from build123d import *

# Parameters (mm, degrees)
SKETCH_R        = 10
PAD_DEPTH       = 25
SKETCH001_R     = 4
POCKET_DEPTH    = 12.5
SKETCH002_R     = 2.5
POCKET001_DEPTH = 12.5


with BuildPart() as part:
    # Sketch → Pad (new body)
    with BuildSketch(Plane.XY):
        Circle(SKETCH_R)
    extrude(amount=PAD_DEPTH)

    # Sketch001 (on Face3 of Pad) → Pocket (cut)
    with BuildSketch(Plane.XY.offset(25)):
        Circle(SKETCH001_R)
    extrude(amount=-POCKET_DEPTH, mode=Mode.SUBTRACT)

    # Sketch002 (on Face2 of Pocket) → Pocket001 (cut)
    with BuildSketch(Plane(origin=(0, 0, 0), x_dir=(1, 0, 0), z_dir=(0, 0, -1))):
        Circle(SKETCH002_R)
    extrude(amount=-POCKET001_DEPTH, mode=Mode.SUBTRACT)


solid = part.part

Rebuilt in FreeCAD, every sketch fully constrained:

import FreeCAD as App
import Part
import Sketcher
Q = App.Units.Quantity

doc = App.newDocument("Part")
params = doc.addObject("Spreadsheet::Sheet", "Params")
for row, (alias, value) in enumerate([
    ("sketch1_diameter", "20 mm"),
    ("pad1_length", "25 mm"),
    ("sketch2_diameter", "8 mm"),
    ("pocket1_length", "12.5 mm"),
    ("sketch3_diameter", "5 mm"),
    ("pocket2_length", "12.5 mm"),
], start=1):
    params.set(f"A{row}", alias)
    params.set(f"B{row}", "=" + value)
    params.setAlias(f"B{row}", alias)

body = doc.addObject("PartDesign::Body", "Body")

sketch1 = body.newObject("Sketcher::SketchObject", "Sketch")
sketch1.AttachmentSupport = (doc.getObject("XY_Plane"), [""])
sketch1.MapMode = "FlatFace"
sketch1.addGeometry(Part.Circle(App.Vector(0, 0, 0), App.Vector(0, 0, 1), 10), False)
sketch1.addConstraint([
    Sketcher.Constraint("Coincident", 0, 3, -1, 1),
    Sketcher.Constraint("Diameter", 0, Q("20 mm")),
])
sketch1.setExpression("Constraints[1]", "Params.sketch1_diameter")
pad1 = body.newObject("PartDesign::Pad", "Pad")
pad1.Profile = sketch1
pad1.setExpression("Length", "Params.pad1_length")

sketch2 = body.newObject("Sketcher::SketchObject", "Sketch001")
sketch2.AttachmentSupport = (doc.getObject("XY_Plane"), [""])
sketch2.MapMode = "FlatFace"
sketch2.AttachmentOffset = App.Placement(App.Vector(0, 0, 25), App.Rotation())
sketch2.addGeometry(Part.Circle(App.Vector(0, 0, 0), App.Vector(0, 0, 1), 4), False)
sketch2.addConstraint([
    Sketcher.Constraint("Coincident", 0, 3, -1, 1),
    Sketcher.Constraint("Diameter", 0, Q("8 mm")),
])
sketch2.setExpression("Constraints[1]", "Params.sketch2_diameter")
pocket1 = body.newObject("PartDesign::Pocket", "Pocket")
pocket1.Profile = sketch2
pocket1.setExpression("Length", "Params.pocket1_length")

sketch3 = body.newObject("Sketcher::SketchObject", "Sketch002")
sketch3.AttachmentSupport = (doc.getObject("XY_Plane"), [""])
sketch3.MapMode = "FlatFace"
sketch3.addGeometry(Part.Circle(App.Vector(0, 0, 0), App.Vector(0, 0, 1), 2.5), False)
sketch3.addConstraint([
    Sketcher.Constraint("Coincident", 0, 3, -1, 1),
    Sketcher.Constraint("Diameter", 0, Q("5 mm")),
])
sketch3.setExpression("Constraints[1]", "Params.sketch3_diameter")
pocket2 = body.newObject("PartDesign::Pocket", "Pocket001")
pocket2.Profile = sketch3
pocket2.setExpression("Length", "Params.pocket2_length")
pocket2.Reversed = True

doc.recompute()
